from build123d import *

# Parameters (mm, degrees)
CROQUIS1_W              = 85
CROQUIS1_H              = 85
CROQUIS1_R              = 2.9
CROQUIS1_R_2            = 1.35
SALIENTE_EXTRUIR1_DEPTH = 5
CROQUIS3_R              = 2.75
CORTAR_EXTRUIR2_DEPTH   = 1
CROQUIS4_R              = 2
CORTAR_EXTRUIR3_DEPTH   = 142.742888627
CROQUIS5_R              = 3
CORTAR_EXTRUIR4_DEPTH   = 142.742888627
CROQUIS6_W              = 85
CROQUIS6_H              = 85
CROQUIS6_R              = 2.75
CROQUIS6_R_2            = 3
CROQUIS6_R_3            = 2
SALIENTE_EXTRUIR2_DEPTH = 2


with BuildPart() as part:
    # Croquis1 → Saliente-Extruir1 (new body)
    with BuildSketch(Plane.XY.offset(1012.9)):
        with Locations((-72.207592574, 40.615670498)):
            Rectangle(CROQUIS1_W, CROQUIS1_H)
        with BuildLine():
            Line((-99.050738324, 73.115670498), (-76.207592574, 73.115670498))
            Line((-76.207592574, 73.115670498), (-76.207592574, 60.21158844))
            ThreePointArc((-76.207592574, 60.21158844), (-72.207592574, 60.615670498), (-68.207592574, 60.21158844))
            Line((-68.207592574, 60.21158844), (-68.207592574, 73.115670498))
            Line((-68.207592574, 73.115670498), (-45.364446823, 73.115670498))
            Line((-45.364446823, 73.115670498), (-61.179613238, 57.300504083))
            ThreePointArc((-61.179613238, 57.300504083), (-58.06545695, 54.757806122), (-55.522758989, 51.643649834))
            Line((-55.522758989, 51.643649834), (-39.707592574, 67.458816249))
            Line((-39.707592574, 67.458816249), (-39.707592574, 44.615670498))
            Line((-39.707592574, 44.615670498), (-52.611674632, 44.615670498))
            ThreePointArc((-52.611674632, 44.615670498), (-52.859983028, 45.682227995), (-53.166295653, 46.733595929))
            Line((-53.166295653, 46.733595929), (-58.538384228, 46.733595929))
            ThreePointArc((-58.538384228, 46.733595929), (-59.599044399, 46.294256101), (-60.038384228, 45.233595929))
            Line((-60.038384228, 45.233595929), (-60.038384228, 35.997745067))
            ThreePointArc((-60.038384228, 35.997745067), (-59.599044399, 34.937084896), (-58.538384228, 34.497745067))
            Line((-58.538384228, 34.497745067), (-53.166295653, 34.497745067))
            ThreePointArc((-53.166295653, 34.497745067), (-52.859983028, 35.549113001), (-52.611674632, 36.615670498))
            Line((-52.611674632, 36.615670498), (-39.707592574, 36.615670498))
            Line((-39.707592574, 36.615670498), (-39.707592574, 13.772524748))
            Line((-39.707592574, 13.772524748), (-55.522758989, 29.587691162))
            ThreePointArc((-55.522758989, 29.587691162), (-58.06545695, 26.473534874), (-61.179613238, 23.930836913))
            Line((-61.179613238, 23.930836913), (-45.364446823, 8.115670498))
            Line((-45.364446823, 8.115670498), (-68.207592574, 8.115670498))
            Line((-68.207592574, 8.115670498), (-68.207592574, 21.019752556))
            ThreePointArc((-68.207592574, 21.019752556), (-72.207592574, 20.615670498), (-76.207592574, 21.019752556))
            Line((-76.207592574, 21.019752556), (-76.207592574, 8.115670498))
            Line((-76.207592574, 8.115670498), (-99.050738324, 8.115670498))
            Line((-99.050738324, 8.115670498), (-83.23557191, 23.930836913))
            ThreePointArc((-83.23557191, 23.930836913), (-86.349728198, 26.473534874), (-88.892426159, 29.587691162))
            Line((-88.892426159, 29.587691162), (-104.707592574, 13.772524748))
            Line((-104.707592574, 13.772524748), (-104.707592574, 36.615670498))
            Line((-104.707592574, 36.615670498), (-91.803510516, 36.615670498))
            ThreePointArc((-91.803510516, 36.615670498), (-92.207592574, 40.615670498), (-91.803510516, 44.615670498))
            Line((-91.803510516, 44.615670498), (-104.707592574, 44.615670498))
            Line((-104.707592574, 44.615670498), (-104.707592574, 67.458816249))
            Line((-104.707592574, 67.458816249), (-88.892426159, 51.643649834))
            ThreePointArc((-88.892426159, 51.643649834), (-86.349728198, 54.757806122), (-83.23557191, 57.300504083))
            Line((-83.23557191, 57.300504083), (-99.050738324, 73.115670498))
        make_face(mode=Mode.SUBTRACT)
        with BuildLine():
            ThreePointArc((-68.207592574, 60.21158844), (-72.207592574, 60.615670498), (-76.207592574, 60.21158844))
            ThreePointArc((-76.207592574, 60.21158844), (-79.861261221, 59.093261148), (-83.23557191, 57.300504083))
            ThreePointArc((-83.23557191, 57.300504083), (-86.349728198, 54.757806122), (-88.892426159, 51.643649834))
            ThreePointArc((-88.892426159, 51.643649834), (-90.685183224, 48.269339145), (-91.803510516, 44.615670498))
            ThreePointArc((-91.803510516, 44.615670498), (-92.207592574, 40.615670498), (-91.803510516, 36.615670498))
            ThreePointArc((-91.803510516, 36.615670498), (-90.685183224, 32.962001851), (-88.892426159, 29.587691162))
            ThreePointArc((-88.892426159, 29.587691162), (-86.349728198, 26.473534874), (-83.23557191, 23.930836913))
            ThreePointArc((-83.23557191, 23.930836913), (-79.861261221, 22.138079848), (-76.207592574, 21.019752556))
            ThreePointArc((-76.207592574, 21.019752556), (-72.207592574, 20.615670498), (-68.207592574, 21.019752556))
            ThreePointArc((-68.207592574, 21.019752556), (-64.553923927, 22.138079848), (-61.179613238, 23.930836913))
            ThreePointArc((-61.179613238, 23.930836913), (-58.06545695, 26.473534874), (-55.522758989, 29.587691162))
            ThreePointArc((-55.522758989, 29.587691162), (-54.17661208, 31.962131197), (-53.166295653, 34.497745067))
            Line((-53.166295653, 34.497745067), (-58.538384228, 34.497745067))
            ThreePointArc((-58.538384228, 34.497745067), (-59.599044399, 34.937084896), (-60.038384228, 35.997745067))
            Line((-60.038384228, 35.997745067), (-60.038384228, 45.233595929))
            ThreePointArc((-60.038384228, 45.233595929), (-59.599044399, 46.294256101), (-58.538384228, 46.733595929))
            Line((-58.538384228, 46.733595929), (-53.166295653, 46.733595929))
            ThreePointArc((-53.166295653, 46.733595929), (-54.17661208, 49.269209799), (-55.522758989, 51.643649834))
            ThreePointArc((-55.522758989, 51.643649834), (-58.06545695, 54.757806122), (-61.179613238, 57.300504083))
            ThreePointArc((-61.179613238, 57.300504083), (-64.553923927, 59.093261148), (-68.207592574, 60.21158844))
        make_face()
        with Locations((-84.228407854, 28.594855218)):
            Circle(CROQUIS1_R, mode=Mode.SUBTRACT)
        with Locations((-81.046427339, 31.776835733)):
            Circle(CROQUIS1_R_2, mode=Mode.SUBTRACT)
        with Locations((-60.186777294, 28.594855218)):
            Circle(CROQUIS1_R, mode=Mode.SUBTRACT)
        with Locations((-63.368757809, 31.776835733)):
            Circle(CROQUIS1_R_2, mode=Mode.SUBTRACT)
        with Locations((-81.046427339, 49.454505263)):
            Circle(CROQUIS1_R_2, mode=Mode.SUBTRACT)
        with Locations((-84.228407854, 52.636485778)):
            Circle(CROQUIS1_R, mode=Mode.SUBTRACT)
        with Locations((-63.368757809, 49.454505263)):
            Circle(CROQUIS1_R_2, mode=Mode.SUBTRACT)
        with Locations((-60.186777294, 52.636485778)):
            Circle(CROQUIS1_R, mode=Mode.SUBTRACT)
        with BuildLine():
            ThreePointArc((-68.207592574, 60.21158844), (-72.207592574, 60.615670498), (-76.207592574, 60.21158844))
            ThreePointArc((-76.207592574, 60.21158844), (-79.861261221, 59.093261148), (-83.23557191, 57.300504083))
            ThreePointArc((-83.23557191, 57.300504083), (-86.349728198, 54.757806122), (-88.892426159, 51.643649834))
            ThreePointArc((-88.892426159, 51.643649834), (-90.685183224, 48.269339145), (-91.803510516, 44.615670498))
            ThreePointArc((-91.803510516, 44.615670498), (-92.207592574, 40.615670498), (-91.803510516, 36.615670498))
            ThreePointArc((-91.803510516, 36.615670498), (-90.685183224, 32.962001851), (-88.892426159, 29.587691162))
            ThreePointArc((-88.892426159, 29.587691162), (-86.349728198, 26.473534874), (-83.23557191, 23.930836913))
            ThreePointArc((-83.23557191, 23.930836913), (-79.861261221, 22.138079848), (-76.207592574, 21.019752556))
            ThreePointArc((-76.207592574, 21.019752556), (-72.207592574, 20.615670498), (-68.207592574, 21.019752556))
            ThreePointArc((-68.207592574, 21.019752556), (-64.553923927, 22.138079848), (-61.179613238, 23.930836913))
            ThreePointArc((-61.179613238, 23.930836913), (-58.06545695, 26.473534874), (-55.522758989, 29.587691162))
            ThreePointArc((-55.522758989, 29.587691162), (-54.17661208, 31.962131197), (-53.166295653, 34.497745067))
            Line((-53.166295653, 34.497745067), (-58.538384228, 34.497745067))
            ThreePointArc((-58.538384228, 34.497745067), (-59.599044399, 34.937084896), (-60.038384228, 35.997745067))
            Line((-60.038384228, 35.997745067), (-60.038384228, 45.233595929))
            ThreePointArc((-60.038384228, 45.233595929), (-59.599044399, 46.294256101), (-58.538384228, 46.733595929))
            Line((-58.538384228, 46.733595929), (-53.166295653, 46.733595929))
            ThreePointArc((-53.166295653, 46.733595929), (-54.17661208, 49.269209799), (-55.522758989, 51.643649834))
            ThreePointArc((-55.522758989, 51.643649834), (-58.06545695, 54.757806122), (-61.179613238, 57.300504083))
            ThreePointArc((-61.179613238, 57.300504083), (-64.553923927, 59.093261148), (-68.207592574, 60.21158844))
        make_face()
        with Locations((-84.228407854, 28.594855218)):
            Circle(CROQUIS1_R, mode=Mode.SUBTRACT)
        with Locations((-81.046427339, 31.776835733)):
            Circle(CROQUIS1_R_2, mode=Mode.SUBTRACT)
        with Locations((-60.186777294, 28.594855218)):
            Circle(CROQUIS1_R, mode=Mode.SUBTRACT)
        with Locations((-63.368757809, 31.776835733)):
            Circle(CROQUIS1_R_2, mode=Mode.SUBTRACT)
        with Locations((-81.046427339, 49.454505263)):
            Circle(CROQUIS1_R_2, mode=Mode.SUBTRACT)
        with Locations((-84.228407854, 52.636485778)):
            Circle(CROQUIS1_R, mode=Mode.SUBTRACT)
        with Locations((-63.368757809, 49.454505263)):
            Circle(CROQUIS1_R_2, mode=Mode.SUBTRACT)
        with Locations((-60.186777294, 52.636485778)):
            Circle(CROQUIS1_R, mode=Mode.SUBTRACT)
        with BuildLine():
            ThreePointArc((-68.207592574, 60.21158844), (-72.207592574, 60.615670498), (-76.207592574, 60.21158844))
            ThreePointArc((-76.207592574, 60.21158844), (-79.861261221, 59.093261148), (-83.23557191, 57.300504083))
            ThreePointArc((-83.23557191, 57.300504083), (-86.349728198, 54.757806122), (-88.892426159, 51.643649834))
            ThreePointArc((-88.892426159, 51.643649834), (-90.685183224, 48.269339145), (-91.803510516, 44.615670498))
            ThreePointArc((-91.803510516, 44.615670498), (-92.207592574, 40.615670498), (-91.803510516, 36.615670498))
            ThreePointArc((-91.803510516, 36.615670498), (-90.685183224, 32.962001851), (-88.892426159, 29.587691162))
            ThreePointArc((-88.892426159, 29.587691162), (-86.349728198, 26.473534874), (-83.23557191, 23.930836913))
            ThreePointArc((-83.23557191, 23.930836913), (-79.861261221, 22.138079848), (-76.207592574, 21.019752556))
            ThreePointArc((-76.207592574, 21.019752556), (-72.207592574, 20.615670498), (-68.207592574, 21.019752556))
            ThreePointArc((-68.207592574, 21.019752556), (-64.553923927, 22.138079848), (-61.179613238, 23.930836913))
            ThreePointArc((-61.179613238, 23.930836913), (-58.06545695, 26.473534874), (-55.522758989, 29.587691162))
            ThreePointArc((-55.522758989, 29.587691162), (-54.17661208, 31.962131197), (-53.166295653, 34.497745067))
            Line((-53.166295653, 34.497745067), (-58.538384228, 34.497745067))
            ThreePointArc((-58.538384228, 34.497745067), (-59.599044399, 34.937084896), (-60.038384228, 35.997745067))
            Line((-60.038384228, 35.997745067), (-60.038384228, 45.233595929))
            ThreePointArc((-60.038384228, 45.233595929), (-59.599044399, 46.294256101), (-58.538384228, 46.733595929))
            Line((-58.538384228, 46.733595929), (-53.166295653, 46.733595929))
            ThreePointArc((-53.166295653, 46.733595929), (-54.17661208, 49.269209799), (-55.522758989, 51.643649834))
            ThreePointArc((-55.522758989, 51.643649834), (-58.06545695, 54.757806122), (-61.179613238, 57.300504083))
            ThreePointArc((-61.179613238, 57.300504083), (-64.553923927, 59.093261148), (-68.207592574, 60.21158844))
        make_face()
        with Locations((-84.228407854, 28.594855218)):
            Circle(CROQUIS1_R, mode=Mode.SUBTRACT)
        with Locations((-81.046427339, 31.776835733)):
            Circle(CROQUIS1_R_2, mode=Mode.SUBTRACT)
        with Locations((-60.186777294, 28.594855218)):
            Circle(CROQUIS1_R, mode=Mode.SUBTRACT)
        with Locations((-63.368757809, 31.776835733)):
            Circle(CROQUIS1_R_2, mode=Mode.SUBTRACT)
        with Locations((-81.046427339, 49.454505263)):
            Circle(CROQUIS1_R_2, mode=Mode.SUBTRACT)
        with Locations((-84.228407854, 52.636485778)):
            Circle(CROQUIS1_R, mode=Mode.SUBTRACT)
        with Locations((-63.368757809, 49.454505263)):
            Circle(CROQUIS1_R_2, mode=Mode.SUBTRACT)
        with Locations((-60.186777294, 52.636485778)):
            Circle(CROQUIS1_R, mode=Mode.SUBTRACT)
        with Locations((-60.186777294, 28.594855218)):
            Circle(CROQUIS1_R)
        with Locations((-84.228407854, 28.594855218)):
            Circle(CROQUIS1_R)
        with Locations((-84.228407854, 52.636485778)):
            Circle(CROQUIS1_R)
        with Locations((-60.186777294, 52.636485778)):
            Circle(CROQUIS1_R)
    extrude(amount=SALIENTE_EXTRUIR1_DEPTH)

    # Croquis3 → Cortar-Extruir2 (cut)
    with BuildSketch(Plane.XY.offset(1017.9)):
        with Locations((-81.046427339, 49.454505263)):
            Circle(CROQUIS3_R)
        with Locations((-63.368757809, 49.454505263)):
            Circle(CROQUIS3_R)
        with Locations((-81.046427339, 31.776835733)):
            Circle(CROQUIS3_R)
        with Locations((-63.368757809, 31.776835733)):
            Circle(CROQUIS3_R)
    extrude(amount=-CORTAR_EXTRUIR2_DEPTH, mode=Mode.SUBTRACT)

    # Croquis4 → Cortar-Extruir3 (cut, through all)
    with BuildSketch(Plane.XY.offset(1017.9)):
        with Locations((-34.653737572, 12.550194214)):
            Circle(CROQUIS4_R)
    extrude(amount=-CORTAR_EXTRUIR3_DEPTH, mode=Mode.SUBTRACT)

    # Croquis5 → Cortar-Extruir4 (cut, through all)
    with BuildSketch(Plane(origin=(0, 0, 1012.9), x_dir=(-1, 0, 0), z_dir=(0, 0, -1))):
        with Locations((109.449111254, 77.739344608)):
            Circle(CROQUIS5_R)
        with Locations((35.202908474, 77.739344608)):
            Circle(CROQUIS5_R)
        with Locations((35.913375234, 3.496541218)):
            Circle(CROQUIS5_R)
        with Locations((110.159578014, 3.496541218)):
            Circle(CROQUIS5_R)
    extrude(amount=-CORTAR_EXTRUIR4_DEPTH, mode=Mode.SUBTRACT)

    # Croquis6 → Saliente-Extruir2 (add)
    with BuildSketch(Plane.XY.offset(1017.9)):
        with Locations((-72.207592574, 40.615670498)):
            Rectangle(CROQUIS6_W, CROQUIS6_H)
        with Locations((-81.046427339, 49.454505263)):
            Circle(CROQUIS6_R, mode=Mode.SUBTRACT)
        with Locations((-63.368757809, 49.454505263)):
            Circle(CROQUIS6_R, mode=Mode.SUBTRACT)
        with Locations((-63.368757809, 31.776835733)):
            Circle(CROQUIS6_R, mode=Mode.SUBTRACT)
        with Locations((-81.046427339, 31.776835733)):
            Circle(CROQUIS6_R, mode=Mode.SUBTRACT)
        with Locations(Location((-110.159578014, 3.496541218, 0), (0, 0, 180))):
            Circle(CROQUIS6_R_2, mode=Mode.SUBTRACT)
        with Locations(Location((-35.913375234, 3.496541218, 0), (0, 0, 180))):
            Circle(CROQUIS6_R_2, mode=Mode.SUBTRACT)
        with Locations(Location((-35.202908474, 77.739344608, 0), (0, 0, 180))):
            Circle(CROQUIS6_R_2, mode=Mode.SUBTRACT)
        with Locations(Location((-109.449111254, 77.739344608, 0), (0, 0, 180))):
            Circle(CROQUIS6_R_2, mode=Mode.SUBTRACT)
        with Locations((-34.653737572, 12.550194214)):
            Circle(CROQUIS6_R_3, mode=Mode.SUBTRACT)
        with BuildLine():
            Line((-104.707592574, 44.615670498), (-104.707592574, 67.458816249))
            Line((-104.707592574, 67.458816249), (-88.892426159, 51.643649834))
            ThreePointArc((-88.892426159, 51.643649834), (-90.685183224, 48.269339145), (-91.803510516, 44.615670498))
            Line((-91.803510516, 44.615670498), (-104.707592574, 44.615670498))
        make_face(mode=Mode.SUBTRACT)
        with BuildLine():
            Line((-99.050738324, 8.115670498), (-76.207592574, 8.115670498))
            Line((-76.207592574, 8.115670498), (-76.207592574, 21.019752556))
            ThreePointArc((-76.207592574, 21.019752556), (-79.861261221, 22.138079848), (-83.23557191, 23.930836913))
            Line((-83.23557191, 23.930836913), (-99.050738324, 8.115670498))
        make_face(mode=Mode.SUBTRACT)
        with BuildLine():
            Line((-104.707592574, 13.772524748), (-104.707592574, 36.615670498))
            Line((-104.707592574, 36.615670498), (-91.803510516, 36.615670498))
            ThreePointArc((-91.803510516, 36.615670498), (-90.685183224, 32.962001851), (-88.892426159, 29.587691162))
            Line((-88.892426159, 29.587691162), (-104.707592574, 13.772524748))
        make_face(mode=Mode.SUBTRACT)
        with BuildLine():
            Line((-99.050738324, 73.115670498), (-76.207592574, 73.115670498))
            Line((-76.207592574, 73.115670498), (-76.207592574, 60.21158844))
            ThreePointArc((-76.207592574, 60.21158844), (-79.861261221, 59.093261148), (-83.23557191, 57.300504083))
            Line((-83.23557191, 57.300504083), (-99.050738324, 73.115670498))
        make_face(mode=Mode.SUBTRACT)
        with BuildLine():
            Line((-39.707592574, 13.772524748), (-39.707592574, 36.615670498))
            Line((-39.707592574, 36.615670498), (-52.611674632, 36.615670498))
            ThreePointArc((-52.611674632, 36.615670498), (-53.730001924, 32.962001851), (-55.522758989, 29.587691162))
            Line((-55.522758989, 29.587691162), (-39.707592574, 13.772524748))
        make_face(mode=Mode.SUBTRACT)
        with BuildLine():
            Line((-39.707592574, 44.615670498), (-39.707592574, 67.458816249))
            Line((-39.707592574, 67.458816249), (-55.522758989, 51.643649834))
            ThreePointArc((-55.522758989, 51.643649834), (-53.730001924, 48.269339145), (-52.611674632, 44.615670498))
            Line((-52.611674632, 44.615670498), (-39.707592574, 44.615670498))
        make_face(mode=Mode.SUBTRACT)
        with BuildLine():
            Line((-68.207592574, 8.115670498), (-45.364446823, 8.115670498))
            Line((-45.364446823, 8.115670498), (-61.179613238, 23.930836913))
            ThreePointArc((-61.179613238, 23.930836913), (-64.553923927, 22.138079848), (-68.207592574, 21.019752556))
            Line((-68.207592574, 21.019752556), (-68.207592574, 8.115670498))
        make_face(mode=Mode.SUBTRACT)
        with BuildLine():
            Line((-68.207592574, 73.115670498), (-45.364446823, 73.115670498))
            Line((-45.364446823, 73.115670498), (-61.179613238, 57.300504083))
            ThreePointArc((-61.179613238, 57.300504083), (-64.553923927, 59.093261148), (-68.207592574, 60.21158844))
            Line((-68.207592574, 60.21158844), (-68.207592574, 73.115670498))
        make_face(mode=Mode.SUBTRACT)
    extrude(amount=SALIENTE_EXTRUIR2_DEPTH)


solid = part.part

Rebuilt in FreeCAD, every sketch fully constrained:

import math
import FreeCAD as App
import Part
import Sketcher

doc = App.newDocument("Part")
body = doc.addObject("PartDesign::Body", "Body")

# Sketch on XY plane
sketch1 = body.newObject("Sketcher::SketchObject", "Sketch")
sketch1.AttachmentSupport = (doc.getObject("XY_Plane"), [""])
sketch1.MapMode = "FlatFace"
sketch1.AttachmentOffset = App.Placement(App.Vector(0, 0, 1012.9), App.Rotation())
sketch1.addGeometry([
    Part.LineSegment(App.Vector(-114.707593, 83.11567, 0), App.Vector(-114.707593, -1.88433, 0)),  # 0
    Part.LineSegment(App.Vector(-114.707593, -1.88433, 0), App.Vector(-29.707593, -1.88433, 0)),  # 1
    Part.LineSegment(App.Vector(-29.707593, -1.88433, 0), App.Vector(-29.707593, 83.11567, 0)),  # 2
    Part.LineSegment(App.Vector(-29.707593, 83.11567, 0), App.Vector(-114.707593, 83.11567, 0)),  # 3
    Part.LineSegment(App.Vector(-76.207593, 21.019753, 0), App.Vector(-76.207593, 8.11567, 0)),  # 4
    Part.LineSegment(App.Vector(-76.207593, 8.11567, 0), App.Vector(-99.050738, 8.11567, 0)),  # 5
    Part.LineSegment(App.Vector(-99.050738, 8.11567, 0), App.Vector(-83.235572, 23.930837, 0)),  # 6
    Part.ArcOfCircle(Part.Circle(App.Vector(-72.207593, 40.615671, 0), App.Vector(0, 0, 1), 20), math.radians(-123.463041), math.radians(-101.536959)),  # 7
    Part.LineSegment(App.Vector(-104.707593, 36.61567, 0), App.Vector(-91.803511, 36.61567, 0)),  # 8
    Part.ArcOfCircle(Part.Circle(App.Vector(-72.207593, 40.615671, 0), App.Vector(0, 0, 1), 20), math.radians(-168.463041), math.radians(-146.536959)),  # 9
    Part.LineSegment(App.Vector(-88.892426, 29.587691, 0), App.Vector(-104.707593, 13.772525, 0)),  # 10
    Part.LineSegment(App.Vector(-104.707593, 13.772525, 0), App.Vector(-104.707593, 36.61567, 0)),  # 11
    Part.Circle(App.Vector(-81.046427, 31.776836, 0), App.Vector(0, 0, 1), 1.35),  # 12
    Part.LineSegment(App.Vector(-68.207593, 8.11567, 0), App.Vector(-68.207593, 21.019753, 0)),  # 13
    Part.ArcOfCircle(Part.Circle(App.Vector(-72.207593, 40.615671, 0), App.Vector(0, 0, 1), 20), math.radians(-78.463041), math.radians(-56.536959)),  # 14
    Part.LineSegment(App.Vector(-61.179613, 23.930837, 0), App.Vector(-45.364447, 8.11567, 0)),  # 15
    Part.LineSegment(App.Vector(-45.364447, 8.11567, 0), App.Vector(-68.207593, 8.11567, 0)),  # 16
    Part.Circle(App.Vector(-63.368758, 31.776836, 0), App.Vector(0, 0, 1), 1.35),  # 17
    Part.LineSegment(App.Vector(-39.707593, 13.772525, 0), App.Vector(-55.522759, 29.587691, 0)),  # 18
    Part.ArcOfCircle(Part.Circle(App.Vector(-72.207593, 40.61567, 0), App.Vector(0, 0, 1), 20), math.radians(-33.463041), math.radians(-17.812094)),  # 19
    Part.ArcOfCircle(Part.Circle(App.Vector(-72.207592, 40.61567, 0), App.Vector(0, 0, 1), 20), math.radians(-17.812094), math.radians(-11.536959)),  # 20
    Part.LineSegment(App.Vector(-52.611675, 36.61567, 0), App.Vector(-39.707593, 36.61567, 0)),  # 21
    Part.LineSegment(App.Vector(-39.707593, 36.61567, 0), App.Vector(-39.707593, 13.772525, 0)),  # 22
    Part.LineSegment(App.Vector(-104.707593, 67.458816, 0), App.Vector(-88.892426, 51.64365, 0)),  # 23
    Part.ArcOfCircle(Part.Circle(App.Vector(-72.207593, 40.61567, 0), App.Vector(0, 0, 1), 20), math.radians(146.536959), math.radians(168.463041)),  # 24
    Part.LineSegment(App.Vector(-91.803511, 44.61567, 0), App.Vector(-104.707593, 44.61567, 0)),  # 25
    Part.LineSegment(App.Vector(-104.707593, 44.61567, 0), App.Vector(-104.707593, 67.458816, 0)),  # 26
    Part.Circle(App.Vector(-81.046427, 49.454505, 0), App.Vector(0, 0, 1), 1.35),  # 27
    Part.LineSegment(App.Vector(-76.207593, 73.11567, 0), App.Vector(-76.207593, 60.211588, 0)),  # 28
    Part.ArcOfCircle(Part.Circle(App.Vector(-72.207593, 40.61567, 0), App.Vector(0, 0, 1), 20), math.radians(101.536959), math.radians(123.463041)),  # 29
    Part.LineSegment(App.Vector(-83.235572, 57.300504, 0), App.Vector(-99.050738, 73.11567, 0)),  # 30
    Part.LineSegment(App.Vector(-99.050738, 73.11567, 0), App.Vector(-76.207593, 73.11567, 0)),  # 31
    Part.Circle(App.Vector(-63.368758, 49.454505, 0), App.Vector(0, 0, 1), 1.35),  # 32
    Part.ArcOfCircle(Part.Circle(App.Vector(-72.207592, 40.615671, 0), App.Vector(0, 0, 1), 20), math.radians(11.536959), math.radians(17.812094)),  # 33
    Part.ArcOfCircle(Part.Circle(App.Vector(-72.207593, 40.615671, 0), App.Vector(0, 0, 1), 20), math.radians(17.812094), math.radians(33.463041)),  # 34
    Part.LineSegment(App.Vector(-55.522759, 51.64365, 0), App.Vector(-39.707593, 67.458816, 0)),  # 35
    Part.LineSegment(App.Vector(-39.707593, 67.458816, 0), App.Vector(-39.707593, 44.61567, 0)),  # 36
    Part.LineSegment(App.Vector(-39.707593, 44.61567, 0), App.Vector(-52.611675, 44.61567, 0)),  # 37
    Part.LineSegment(App.Vector(-45.364447, 73.11567, 0), App.Vector(-61.179613, 57.300504, 0)),  # 38
    Part.ArcOfCircle(Part.Circle(App.Vector(-72.207593, 40.61567, 0), App.Vector(0, 0, 1), 20), math.radians(56.536959), math.radians(78.463041)),  # 39
    Part.LineSegment(App.Vector(-68.207593, 60.211588, 0), App.Vector(-68.207593, 73.11567, 0)),  # 40
    Part.LineSegment(App.Vector(-68.207593, 73.11567, 0), App.Vector(-45.364447, 73.11567, 0)),  # 41
], False)
sketch1.addConstraint([
    Sketcher.Constraint("Coincident", 0, 2, 1, 1),
    Sketcher.Constraint("Coincident", 1, 2, 2, 1),
    Sketcher.Constraint("Coincident", 2, 2, 3, 1),
    Sketcher.Constraint("Coincident", 3, 2, 0, 1),
    Sketcher.Constraint("Coincident", 4, 2, 5, 1),
    Sketcher.Constraint("Coincident", 5, 2, 6, 1),
    Sketcher.Constraint("Coincident", 6, 2, 7, 1),
    Sketcher.Constraint("Coincident", 7, 2, 4, 1),
    Sketcher.Constraint("Coincident", 8, 2, 9, 1),
    Sketcher.Constraint("Coincident", 9, 2, 10, 1),
    Sketcher.Constraint("Coincident", 10, 2, 11, 1),
    Sketcher.Constraint("Coincident", 11, 2, 8, 1),
    Sketcher.Constraint("Coincident", 13, 2, 14, 1),
    Sketcher.Constraint("Coincident", 14, 2, 15, 1),
    Sketcher.Constraint("Coincident", 15, 2, 16, 1),
    Sketcher.Constraint("Coincident", 16, 2, 13, 1),
    Sketcher.Constraint("Coincident", 18, 2, 19, 1),
    Sketcher.Constraint("Tangent", 19, 2, 20, 1),
    Sketcher.Constraint("Coincident", 20, 2, 21, 1),
    Sketcher.Constraint("Coincident", 21, 2, 22, 1),
    Sketcher.Constraint("Coincident", 22, 2, 18, 1),
    Sketcher.Constraint("Coincident", 23, 2, 24, 1),
    Sketcher.Constraint("Coincident", 24, 2, 25, 1),
    Sketcher.Constraint("Coincident", 25, 2, 26, 1),
    Sketcher.Constraint("Coincident", 26, 2, 23, 1),
    Sketcher.Constraint("Coincident", 28, 2, 29, 1),
    Sketcher.Constraint("Coincident", 29, 2, 30, 1),
    Sketcher.Constraint("Coincident", 30, 2, 31, 1),
    Sketcher.Constraint("Coincident", 31, 2, 28, 1),
    Sketcher.Constraint("Tangent", 33, 2, 34, 1),
    Sketcher.Constraint("Coincident", 34, 2, 35, 1),
    Sketcher.Constraint("Coincident", 35, 2, 36, 1),
    Sketcher.Constraint("Coincident", 36, 2, 37, 1),
    Sketcher.Constraint("Coincident", 37, 2, 33, 1),
    Sketcher.Constraint("Coincident", 38, 2, 39, 1),
    Sketcher.Constraint("Coincident", 39, 2, 40, 1),
    Sketcher.Constraint("Coincident", 40, 2, 41, 1),
    Sketcher.Constraint("Coincident", 41, 2, 38, 1),
    Sketcher.Constraint("Vertical", 0),
    Sketcher.Constraint("Horizontal", 1),
    Sketcher.Constraint("Vertical", 2),
    Sketcher.Constraint("Horizontal", 3),
    Sketcher.Constraint("Vertical", 4),
    Sketcher.Constraint("Horizontal", 5),
    Sketcher.Constraint("Horizontal", 8),
    Sketcher.Constraint("Vertical", 11),
    Sketcher.Constraint("Vertical", 13),
    Sketcher.Constraint("Horizontal", 16),
    Sketcher.Constraint("Horizontal", 21),
    Sketcher.Constraint("Vertical", 22),
    Sketcher.Constraint("Horizontal", 25),
    Sketcher.Constraint("Vertical", 26),
    Sketcher.Constraint("Vertical", 28),
    Sketcher.Constraint("Horizontal", 31),
    Sketcher.Constraint("Vertical", 36),
    Sketcher.Constraint("Horizontal", 37),
    Sketcher.Constraint("Vertical", 40),
    Sketcher.Constraint("Horizontal", 41),
    Sketcher.Constraint("Coincident", 9, 3, 7, 3),
    Sketcher.Constraint("Coincident", 14, 3, 7, 3),
    Sketcher.Constraint("Coincident", 19, 3, 7, 3),
    Sketcher.Constraint("Coincident", 24, 3, 7, 3),
    Sketcher.Constraint("Coincident", 29, 3, 7, 3),
    Sketcher.Constraint("Coincident", 33, 3, 7, 3),
    Sketcher.Constraint("Coincident", 39, 3, 7, 3),
    Sketcher.Constraint("Equal", 7, 9),
    Sketcher.Constraint("Equal", 9, 14),
    Sketcher.Constraint("Equal", 12, 17),
    Sketcher.Constraint("Equal", 14, 19),
    Sketcher.Constraint("Equal", 19, 20),
    Sketcher.Constraint("Equal", 20, 24),
    Sketcher.Constraint("Equal", 17, 27),
    Sketcher.Constraint("Equal", 24, 29),
    Sketcher.Constraint("Equal", 27, 32),
    Sketcher.Constraint("Equal", 29, 33),
    Sketcher.Constraint("Equal", 33, 34),
    Sketcher.Constraint("Equal", 34, 39),
    Sketcher.Constraint("Parallel", 6, 10),
    Sketcher.Constraint("Perpendicular", 10, 15),
    Sketcher.Constraint("Parallel", 15, 18),
    Sketcher.Constraint("Parallel", 18, 23),
    Sketcher.Constraint("Parallel", 23, 30),
    Sketcher.Constraint("Perpendicular", 30, 35),
    Sketcher.Constraint("Parallel", 35, 38),
    Sketcher.Constraint("Horizontal", 12, 3, 17, 3),
    Sketcher.Constraint("Horizontal", 27, 3, 32, 3),
    Sketcher.Constraint("Horizontal", 7, 2, 13, 2),
    Sketcher.Constraint("Horizontal", 6, 2, 14, 2),
    Sketcher.Constraint("Horizontal", 5, 2, 15, 2),
    Sketcher.Constraint("Horizontal", 9, 2, 18, 2),
    Sketcher.Constraint("Horizontal", 11, 2, 20, 2),
    Sketcher.Constraint("Horizontal", 10, 2, 22, 2),
    Sketcher.Constraint("Horizontal", 23, 2, 34, 2),
    Sketcher.Constraint("Horizontal", 26, 2, 35, 2),
    Sketcher.Constraint("Horizontal", 25, 2, 36, 2),
    Sketcher.Constraint("Horizontal", 29, 2, 38, 2),
    Sketcher.Constraint("Horizontal", 28, 2, 39, 2),
    Sketcher.Constraint("Horizontal", 31, 2, 40, 2),
    Sketcher.Constraint("Vertical", 12, 3, 27, 3),
    Sketcher.Constraint("Vertical", 17, 3, 32, 3),
    Sketcher.Constraint("Vertical", 9, 2, 23, 2),
    Sketcher.Constraint("Vertical", 8, 2, 24, 2),
    Sketcher.Constraint("Vertical", 11, 2, 25, 2),
    Sketcher.Constraint("Vertical", 7, 2, 28, 2),
    Sketcher.Constraint("Vertical", 6, 2, 29, 2),
    Sketcher.Constraint("Vertical", 5, 2, 30, 2),
    Sketcher.Constraint("Vertical", 19, 2, 33, 2),
    Sketcher.Constraint("Vertical", 22, 2, 35, 2),
    Sketcher.Constraint("Equal", 3, 0),
    Sketcher.Constraint("Equal", 37, 4),
    Sketcher.Constraint("Equal", 41, 11),
    Sketcher.Constraint("Equal", 6, 10),
    Sketcher.Constraint("Radius", 7, 20.0),
    Sketcher.Constraint("Diameter", 12, 2.7),
    Sketcher.Constraint("DistanceX", 1, 1, 1, 2, 85.0),
    Sketcher.Constraint("DistanceX", 4, 2, 20, 3, 4.0),
    Sketcher.Constraint("DistanceY", 0, 2, 5, 2, 10.0),
    Sketcher.Constraint("DistanceX", 0, 2, 10, 2, 10.0),
    Sketcher.Constraint("DistanceX", 22, 2, 1, 2, 10.0),
    Sketcher.Constraint("DistanceY", 6, 2, 12, 3, 7.845999),
    Sketcher.Constraint("DistanceX", 9, 2, 12, 3, 7.845999),
    Sketcher.Constraint("DistanceX", 17, 3, 18, 2, 7.845999),
    Sketcher.Constraint("DistanceY", 27, 3, 29, 2, 7.845999),
    Sketcher.Constraint("DistanceX", 5, 2, 5, 1, 22.843146),
    Sketcher.Constraint("DistanceY", -1, 1, 7, 3, 40.615671),
    Sketcher.Constraint("DistanceX", 5, 2, -1, 1, 99.050738),
    Sketcher.Constraint("DistanceY", 17, 3, 19, 2, 2.720909),
])
pad1 = body.newObject("PartDesign::Pad", "Pad")
pad1.Profile = sketch1
pad1.Length = 5

# Sketch on XY plane
sketch2 = body.newObject("Sketcher::SketchObject", "Sketch001")
sketch2.AttachmentSupport = (doc.getObject("XY_Plane"), [""])
sketch2.MapMode = "FlatFace"
sketch2.AttachmentOffset = App.Placement(App.Vector(0, 0, 1017.9), App.Rotation())
sketch2.addGeometry([
    Part.Circle(App.Vector(-81.046427, 49.454505, 0), App.Vector(0, 0, 1), 2.75),
    Part.Circle(App.Vector(-63.368758, 49.454505, 0), App.Vector(0, 0, 1), 2.75),
    Part.Circle(App.Vector(-81.046427, 31.776836, 0), App.Vector(0, 0, 1), 2.75),
    Part.Circle(App.Vector(-63.368758, 31.776836, 0), App.Vector(0, 0, 1), 2.75),
], False)
sketch2.addConstraint([
    Sketcher.Constraint("Equal", 0, 1),
    Sketcher.Constraint("Equal", 1, 2),
    Sketcher.Constraint("Equal", 2, 3),
    Sketcher.Constraint("Horizontal", 0, 3, 1, 3),
    Sketcher.Constraint("Horizontal", 2, 3, 3, 3),
    Sketcher.Constraint("Vertical", 0, 3, 2, 3),
    Sketcher.Constraint("Vertical", 1, 3, 3, 3),
    Sketcher.Constraint("Diameter", 0, 5.5),
    Sketcher.Constraint("DistanceX", 0, 3, 1, 3, 17.67767),
    Sketcher.Constraint("DistanceY", 2, 3, 0, 3, 17.67767),
    Sketcher.Constraint("DistanceX", 0, 3, -1, 1, 81.046427),
    Sketcher.Constraint("DistanceY", -1, 1, 0, 3, 49.454505),
])
pocket1 = body.newObject("PartDesign::Pocket", "Pocket")
pocket1.Profile = sketch2
pocket1.Length = 1

# Sketch on XY plane
sketch3 = body.newObject("Sketcher::SketchObject", "Sketch002")
sketch3.AttachmentSupport = (doc.getObject("XY_Plane"), [""])
sketch3.MapMode = "FlatFace"
sketch3.AttachmentOffset = App.Placement(App.Vector(0, 0, 1017.9), App.Rotation())
sketch3.addGeometry(Part.Circle(App.Vector(-34.653738, 12.550194, 0), App.Vector(0, 0, 1), 2), False)
sketch3.addConstraint([
    Sketcher.Constraint("Diameter", 0, 4.0),
    Sketcher.Constraint("DistanceX", 0, 3, -1, 1, 34.653738),
    Sketcher.Constraint("DistanceY", -1, 1, 0, 3, 12.550194),
])
pocket2 = body.newObject("PartDesign::Pocket", "Pocket001")
pocket2.Profile = sketch3
pocket2.Type = "ThroughAll"

# Sketch on XY plane
sketch4 = body.newObject("Sketcher::SketchObject", "Sketch003")
sketch4.AttachmentSupport = (doc.getObject("XY_Plane"), [""])
sketch4.MapMode = "FlatFace"
sketch4.AttachmentOffset = App.Placement(App.Vector(0, 0, 1012.9), App.Rotation())
sketch4.addGeometry([
    Part.Circle(App.Vector(-109.449111, 77.739345, 0), App.Vector(0, 0, 1), 3),
    Part.Circle(App.Vector(-35.202908, 77.739345, 0), App.Vector(0, 0, 1), 3),
    Part.Circle(App.Vector(-35.913375, 3.496541, 0), App.Vector(0, 0, 1), 3),
    Part.Circle(App.Vector(-110.159578, 3.496541, 0), App.Vector(0, 0, 1), 3),
], False)
sketch4.addConstraint([
    Sketcher.Constraint("Equal", 0, 1),
    Sketcher.Constraint("Equal", 1, 2),
    Sketcher.Constraint("Equal", 2, 3),
    Sketcher.Constraint("Horizontal", 0, 3, 1, 3),
    Sketcher.Constraint("Horizontal", 2, 3, 3, 3),
    Sketcher.Constraint("Diameter", 0, 6.0),
    Sketcher.Constraint("DistanceX", 0, 3, -1, 1, 109.449111),
    Sketcher.Constraint("DistanceX", 1, 3, -1, 1, 35.202908),
    Sketcher.Constraint("DistanceY", -1, 1, 2, 3, 3.496541),
    Sketcher.Constraint("DistanceX", 3, 3, -1, 1, 110.159578),
    Sketcher.Constraint("DistanceY", -1, 1, 0, 3, 77.739345),
    Sketcher.Constraint("DistanceX", 2, 3, -1, 1, 35.913375),
])
pocket3 = body.newObject("PartDesign::Pocket", "Pocket002")
pocket3.Profile = sketch4
pocket3.Type = "ThroughAll"
pocket3.Reversed = True

# Sketch on XY plane
sketch5 = body.newObject("Sketcher::SketchObject", "Sketch004")
sketch5.AttachmentSupport = (doc.getObject("XY_Plane"), [""])
sketch5.MapMode = "FlatFace"
sketch5.AttachmentOffset = App.Placement(App.Vector(0, 0, 1017.9), App.Rotation())
sketch5.addGeometry([
    Part.LineSegment(App.Vector(-114.707593, 83.11567, 0), App.Vector(-114.707593, -1.88433, 0)),  # 0
    Part.LineSegment(App.Vector(-114.707593, -1.88433, 0), App.Vector(-29.707593, -1.88433, 0)),  # 1
    Part.LineSegment(App.Vector(-29.707593, -1.88433, 0), App.Vector(-29.707593, 83.11567, 0)),  # 2
    Part.LineSegment(App.Vector(-29.707593, 83.11567, 0), App.Vector(-114.707593, 83.11567, 0)),  # 3
    Part.Circle(App.Vector(-110.159578, 3.496541, 0), App.Vector(0, 0, 1), 3),  # 4
    Part.LineSegment(App.Vector(-76.207593, 8.11567, 0), App.Vector(-99.050738, 8.11567, 0)),  # 5
    Part.LineSegment(App.Vector(-99.050738, 8.11567, 0), App.Vector(-83.235572, 23.930837, 0)),  # 6
    Part.ArcOfCircle(Part.Circle(App.Vector(-72.207593, 40.615671, 0), App.Vector(0, 0, 1), 20), math.radians(-123.463041), math.radians(-101.536959)),  # 7
    Part.LineSegment(App.Vector(-76.207593, 21.019753, 0), App.Vector(-76.207593, 8.11567, 0)),  # 8
    Part.LineSegment(App.Vector(-88.892426, 29.587691, 0), App.Vector(-104.707593, 13.772525, 0)),  # 9
    Part.LineSegment(App.Vector(-104.707593, 13.772525, 0), App.Vector(-104.707593, 36.61567, 0)),  # 10
    Part.LineSegment(App.Vector(-104.707593, 36.61567, 0), App.Vector(-91.803511, 36.61567, 0)),  # 11
    Part.ArcOfCircle(Part.Circle(App.Vector(-72.207593, 40.615671, 0), App.Vector(0, 0, 1), 20), math.radians(-168.463041), math.radians(-146.536959)),  # 12
    Part.Circle(App.Vector(-81.046427, 31.776836, 0), App.Vector(0, 0, 1), 2.75),  # 13
    Part.LineSegment(App.Vector(-45.364447, 8.11567, 0), App.Vector(-68.207593, 8.11567, 0)),  # 14
    Part.LineSegment(App.Vector(-68.207593, 8.11567, 0), App.Vector(-68.207593, 21.019753, 0)),  # 15
    Part.ArcOfCircle(Part.Circle(App.Vector(-72.207593, 40.615671, 0), App.Vector(0, 0, 1), 20), math.radians(-78.463041), math.radians(-56.536959)),  # 16
    Part.LineSegment(App.Vector(-61.179613, 23.930837, 0), App.Vector(-45.364447, 8.11567, 0)),  # 17
    Part.Circle(App.Vector(-35.913375, 3.496541, 0), App.Vector(0, 0, 1), 3),  # 18
    Part.Circle(App.Vector(-34.653738, 12.550194, 0), App.Vector(0, 0, 1), 2),  # 19
    Part.Circle(App.Vector(-63.368758, 31.776836, 0), App.Vector(0, 0, 1), 2.75),  # 20
    Part.LineSegment(App.Vector(-39.707593, 36.61567, 0), App.Vector(-39.707593, 13.772525, 0)),  # 21
    Part.LineSegment(App.Vector(-39.707593, 13.772525, 0), App.Vector(-55.522759, 29.587691, 0)),  # 22
    Part.ArcOfCircle(Part.Circle(App.Vector(-72.207593, 40.615671, 0), App.Vector(0, 0, 1), 20), math.radians(-33.463041), math.radians(-11.536959)),  # 23
    Part.LineSegment(App.Vector(-52.611675, 36.61567, 0), App.Vector(-39.707593, 36.61567, 0)),  # 24
    Part.LineSegment(App.Vector(-91.803511, 44.61567, 0), App.Vector(-104.707593, 44.61567, 0)),  # 25
    Part.LineSegment(App.Vector(-104.707593, 44.61567, 0), App.Vector(-104.707593, 67.458816, 0)),  # 26
    Part.LineSegment(App.Vector(-104.707593, 67.458816, 0), App.Vector(-88.892426, 51.64365, 0)),  # 27
    Part.ArcOfCircle(Part.Circle(App.Vector(-72.207593, 40.61567, 0), App.Vector(0, 0, 1), 20), math.radians(146.536959), math.radians(168.463041)),  # 28
    Part.Circle(App.Vector(-81.046427, 49.454505, 0), App.Vector(0, 0, 1), 2.75),  # 29
    Part.Circle(App.Vector(-109.449111, 77.739345, 0), App.Vector(0, 0, 1), 3),  # 30
    Part.LineSegment(App.Vector(-83.235572, 57.300504, 0), App.Vector(-99.050738, 73.11567, 0)),  # 31
    Part.LineSegment(App.Vector(-99.050738, 73.11567, 0), App.Vector(-76.207593, 73.11567, 0)),  # 32
    Part.LineSegment(App.Vector(-76.207593, 73.11567, 0), App.Vector(-76.207593, 60.211588, 0)),  # 33
    Part.ArcOfCircle(Part.Circle(App.Vector(-72.207593, 40.61567, 0), App.Vector(0, 0, 1), 20), math.radians(101.536959), math.radians(123.463041)),  # 34
    Part.Circle(App.Vector(-63.368758, 49.454505, 0), App.Vector(0, 0, 1), 2.75),  # 35
    Part.LineSegment(App.Vector(-39.707593, 67.458816, 0), App.Vector(-39.707593, 44.61567, 0)),  # 36
    Part.LineSegment(App.Vector(-39.707593, 44.61567, 0), App.Vector(-52.611675, 44.61567, 0)),  # 37
    Part.ArcOfCircle(Part.Circle(App.Vector(-72.207593, 40.61567, 0), App.Vector(0, 0, 1), 20), math.radians(11.536959), math.radians(33.463041)),  # 38
    Part.LineSegment(App.Vector(-55.522759, 51.64365, 0), App.Vector(-39.707593, 67.458816, 0)),  # 39
    Part.LineSegment(App.Vector(-68.207593, 60.211588, 0), App.Vector(-68.207593, 73.11567, 0)),  # 40
    Part.LineSegment(App.Vector(-68.207593, 73.11567, 0), App.Vector(-45.364447, 73.11567, 0)),  # 41
    Part.LineSegment(App.Vector(-45.364447, 73.11567, 0), App.Vector(-61.179613, 57.300504, 0)),  # 42
    Part.ArcOfCircle(Part.Circle(App.Vector(-72.207593, 40.61567, 0), App.Vector(0, 0, 1), 20), math.radians(56.536959), math.radians(78.463041)),  # 43
    Part.Circle(App.Vector(-35.202908, 77.739345, 0), App.Vector(0, 0, 1), 3),  # 44
], False)
sketch5.addConstraint([
    Sketcher.Constraint("Coincident", 0, 2, 1, 1),
    Sketcher.Constraint("Coincident", 1, 2, 2, 1),
    Sketcher.Constraint("Coincident", 2, 2, 3, 1),
    Sketcher.Constraint("Coincident", 3, 2, 0, 1),
    Sketcher.Constraint("Coincident", 5, 2, 6, 1),
    Sketcher.Constraint("Coincident", 6, 2, 7, 1),
    Sketcher.Constraint("Coincident", 7, 2, 8, 1),
    Sketcher.Constraint("Coincident", 8, 2, 5, 1),
    Sketcher.Constraint("Coincident", 9, 2, 10, 1),
    Sketcher.Constraint("Coincident", 10, 2, 11, 1),
    Sketcher.Constraint("Coincident", 11, 2, 12, 1),
    Sketcher.Constraint("Coincident", 12, 2, 9, 1),
    Sketcher.Constraint("Coincident", 14, 2, 15, 1),
    Sketcher.Constraint("Coincident", 15, 2, 16, 1),
    Sketcher.Constraint("Coincident", 16, 2, 17, 1),
    Sketcher.Constraint("Coincident", 17, 2, 14, 1),
    Sketcher.Constraint("Coincident", 21, 2, 22, 1),
    Sketcher.Constraint("Coincident", 22, 2, 23, 1),
    Sketcher.Constraint("Coincident", 23, 2, 24, 1),
    Sketcher.Constraint("Coincident", 24, 2, 21, 1),
    Sketcher.Constraint("Coincident", 25, 2, 26, 1),
    Sketcher.Constraint("Coincident", 26, 2, 27, 1),
    Sketcher.Constraint("Coincident", 27, 2, 28, 1),
    Sketcher.Constraint("Coincident", 28, 2, 25, 1),
    Sketcher.Constraint("Coincident", 31, 2, 32, 1),
    Sketcher.Constraint("Coincident", 32, 2, 33, 1),
    Sketcher.Constraint("Coincident", 33, 2, 34, 1),
    Sketcher.Constraint("Coincident", 34, 2, 31, 1),
    Sketcher.Constraint("Coincident", 36, 2, 37, 1),
    Sketcher.Constraint("Coincident", 37, 2, 38, 1),
    Sketcher.Constraint("Coincident", 38, 2, 39, 1),
    Sketcher.Constraint("Coincident", 39, 2, 36, 1),
    Sketcher.Constraint("Coincident", 40, 2, 41, 1),
    Sketcher.Constraint("Coincident", 41, 2, 42, 1),
    Sketcher.Constraint("Coincident", 42, 2, 43, 1),
    Sketcher.Constraint("Coincident", 43, 2, 40, 1),
    Sketcher.Constraint("Vertical", 0),
    Sketcher.Constraint("Horizontal", 1),
    Sketcher.Constraint("Vertical", 2),
    Sketcher.Constraint("Horizontal", 3),
    Sketcher.Constraint("Horizontal", 5),
    Sketcher.Constraint("Vertical", 8),
    Sketcher.Constraint("Vertical", 10),
    Sketcher.Constraint("Horizontal", 11),
    Sketcher.Constraint("Horizontal", 14),
    Sketcher.Constraint("Vertical", 15),
    Sketcher.Constraint("Vertical", 21),
    Sketcher.Constraint("Horizontal", 24),
    Sketcher.Constraint("Horizontal", 25),
    Sketcher.Constraint("Vertical", 26),
    Sketcher.Constraint("Horizontal", 32),
    Sketcher.Constraint("Vertical", 33),
    Sketcher.Constraint("Vertical", 36),
    Sketcher.Constraint("Horizontal", 37),
    Sketcher.Constraint("Vertical", 40),
    Sketcher.Constraint("Horizontal", 41),
    Sketcher.Constraint("Coincident", 12, 3, 7, 3),
    Sketcher.Constraint("Coincident", 16, 3, 7, 3),
    Sketcher.Constraint("Coincident", 23, 3, 7, 3),
    Sketcher.Constraint("Coincident", 28, 3, 7, 3),
    Sketcher.Constraint("Coincident", 34, 3, 7, 3),
    Sketcher.Constraint("Coincident", 38, 3, 7, 3),
    Sketcher.Constraint("Coincident", 43, 3, 7, 3),
    Sketcher.Constraint("Equal", 7, 12),
    Sketcher.Constraint("Equal", 12, 16),
    Sketcher.Constraint("Equal", 4, 18),
    Sketcher.Constraint("Equal", 13, 20),
    Sketcher.Constraint("Equal", 16, 23),
    Sketcher.Constraint("Equal", 23, 28),
    Sketcher.Constraint("Equal", 20, 29),
    Sketcher.Constraint("Equal", 18, 30),
    Sketcher.Constraint("Equal", 28, 34),
    Sketcher.Constraint("Equal", 29, 35),
    Sketcher.Constraint("Equal", 34, 38),
    Sketcher.Constraint("Equal", 38, 43),
    Sketcher.Constraint("Equal", 30, 44),
    Sketcher.Constraint("Parallel", 6, 9),
    Sketcher.Constraint("Perpendicular", 9, 17),
    Sketcher.Constraint("Parallel", 17, 22),
    Sketcher.Constraint("Parallel", 22, 27),
    Sketcher.Constraint("Parallel", 27, 31),
    Sketcher.Constraint("Perpendicular", 31, 39),
    Sketcher.Constraint("Parallel", 39, 42),
    Sketcher.Constraint("Horizontal", 4, 3, 18, 3),
    Sketcher.Constraint("Horizontal", 13, 3, 20, 3),
    Sketcher.Constraint("Horizontal", 29, 3, 35, 3),
    Sketcher.Constraint("Horizontal", 30, 3, 44, 3),
    Sketcher.Constraint("Horizontal", 8, 2, 14, 2),
    Sketcher.Constraint("Horizontal", 7, 2, 15, 2),
    Sketcher.Constraint("Horizontal", 6, 2, 16, 2),
    Sketcher.Constraint("Horizontal", 9, 2, 21, 2),
    Sketcher.Constraint("Horizontal", 12, 2, 22, 2),
    Sketcher.Constraint("Horizontal", 11, 2, 23, 2),
    Sketcher.Constraint("Horizontal", 28, 2, 36, 2),
    Sketcher.Constraint("Horizontal", 27, 2, 38, 2),
    Sketcher.Constraint("Horizontal", 26, 2, 39, 2),
    Sketcher.Constraint("Horizontal", 32, 2, 40, 2),
    Sketcher.Constraint("Horizontal", 34, 2, 42, 2),
    Sketcher.Constraint("Horizontal", 33, 2, 43, 2),
    Sketcher.Constraint("Vertical", 13, 3, 29, 3),
    Sketcher.Constraint("Vertical", 20, 3, 35, 3),
    Sketcher.Constraint("Vertical", 10, 2, 25, 2),
    Sketcher.Constraint("Vertical", 12, 2, 27, 2),
    Sketcher.Constraint("Vertical", 11, 2, 28, 2),
    Sketcher.Constraint("Vertical", 5, 2, 31, 2),
    Sketcher.Constraint("Vertical", 8, 2, 32, 2),
    Sketcher.Constraint("Vertical", 6, 2, 34, 2),
    Sketcher.Constraint("Vertical", 24, 2, 36, 2),
    Sketcher.Constraint("Equal", 3, 0),
    Sketcher.Constraint("Equal", 37, 8),
    Sketcher.Constraint("Equal", 41, 10),
    Sketcher.Constraint("Equal", 6, 9),
    Sketcher.Constraint("Diameter", 4, 6.0),
    Sketcher.Constraint("Diameter", 19, 4.0),
    Sketcher.Constraint("Radius", 7, 20.0),
    Sketcher.Constraint("Diameter", 13, 5.5),
    Sketcher.Constraint("DistanceX", 1, 1, 1, 2, 85.0),
    Sketcher.Constraint("DistanceY", 0, 2, 5, 2, 10.0),
    Sketcher.Constraint("DistanceX", 7, 2, 43, 3, 4.0),
    Sketcher.Constraint("DistanceX", 0, 2, 9, 2, 10.0),
    Sketcher.Constraint("DistanceX", 21, 2, 1, 2, 10.0),
    Sketcher.Constraint("DistanceY", 6, 2, 13, 3, 7.845999),
    Sketcher.Constraint("DistanceX", 12, 2, 13, 3, 7.845999),
    Sketcher.Constraint("DistanceX", 20, 3, 22, 2, 7.845999),
    Sketcher.Constraint("DistanceY", 29, 3, 34, 2, 7.845999),
    Sketcher.Constraint("DistanceX", 5, 2, 5, 1, 22.843146),
    Sketcher.Constraint("DistanceX", 4, 3, -1, 1, 110.159578),
    Sketcher.Constraint("DistanceY", -1, 1, 4, 3, 3.496541),
    Sketcher.Constraint("DistanceY", -1, 1, 7, 3, 40.615671),
    Sketcher.Constraint("DistanceX", 30, 3, -1, 1, 109.449111),
    Sketcher.Constraint("DistanceX", 44, 3, -1, 1, 35.202908),
    Sketcher.Constraint("DistanceX", 5, 2, -1, 1, 99.050738),
    Sketcher.Constraint("DistanceX", 13, 3, 19, 3, 46.39269),
    Sketcher.Constraint("DistanceY", 19, 3, 13, 3, 19.226642),
    Sketcher.Constraint("DistanceY", 29, 3, 30, 3, 28.284839),
    Sketcher.Constraint("DistanceX", 17, 2, 18, 3, 9.451072),
])
pad2 = body.newObject("PartDesign::Pad", "Pad001")
pad2.Profile = sketch5
pad2.Length = 2

doc.recompute()
